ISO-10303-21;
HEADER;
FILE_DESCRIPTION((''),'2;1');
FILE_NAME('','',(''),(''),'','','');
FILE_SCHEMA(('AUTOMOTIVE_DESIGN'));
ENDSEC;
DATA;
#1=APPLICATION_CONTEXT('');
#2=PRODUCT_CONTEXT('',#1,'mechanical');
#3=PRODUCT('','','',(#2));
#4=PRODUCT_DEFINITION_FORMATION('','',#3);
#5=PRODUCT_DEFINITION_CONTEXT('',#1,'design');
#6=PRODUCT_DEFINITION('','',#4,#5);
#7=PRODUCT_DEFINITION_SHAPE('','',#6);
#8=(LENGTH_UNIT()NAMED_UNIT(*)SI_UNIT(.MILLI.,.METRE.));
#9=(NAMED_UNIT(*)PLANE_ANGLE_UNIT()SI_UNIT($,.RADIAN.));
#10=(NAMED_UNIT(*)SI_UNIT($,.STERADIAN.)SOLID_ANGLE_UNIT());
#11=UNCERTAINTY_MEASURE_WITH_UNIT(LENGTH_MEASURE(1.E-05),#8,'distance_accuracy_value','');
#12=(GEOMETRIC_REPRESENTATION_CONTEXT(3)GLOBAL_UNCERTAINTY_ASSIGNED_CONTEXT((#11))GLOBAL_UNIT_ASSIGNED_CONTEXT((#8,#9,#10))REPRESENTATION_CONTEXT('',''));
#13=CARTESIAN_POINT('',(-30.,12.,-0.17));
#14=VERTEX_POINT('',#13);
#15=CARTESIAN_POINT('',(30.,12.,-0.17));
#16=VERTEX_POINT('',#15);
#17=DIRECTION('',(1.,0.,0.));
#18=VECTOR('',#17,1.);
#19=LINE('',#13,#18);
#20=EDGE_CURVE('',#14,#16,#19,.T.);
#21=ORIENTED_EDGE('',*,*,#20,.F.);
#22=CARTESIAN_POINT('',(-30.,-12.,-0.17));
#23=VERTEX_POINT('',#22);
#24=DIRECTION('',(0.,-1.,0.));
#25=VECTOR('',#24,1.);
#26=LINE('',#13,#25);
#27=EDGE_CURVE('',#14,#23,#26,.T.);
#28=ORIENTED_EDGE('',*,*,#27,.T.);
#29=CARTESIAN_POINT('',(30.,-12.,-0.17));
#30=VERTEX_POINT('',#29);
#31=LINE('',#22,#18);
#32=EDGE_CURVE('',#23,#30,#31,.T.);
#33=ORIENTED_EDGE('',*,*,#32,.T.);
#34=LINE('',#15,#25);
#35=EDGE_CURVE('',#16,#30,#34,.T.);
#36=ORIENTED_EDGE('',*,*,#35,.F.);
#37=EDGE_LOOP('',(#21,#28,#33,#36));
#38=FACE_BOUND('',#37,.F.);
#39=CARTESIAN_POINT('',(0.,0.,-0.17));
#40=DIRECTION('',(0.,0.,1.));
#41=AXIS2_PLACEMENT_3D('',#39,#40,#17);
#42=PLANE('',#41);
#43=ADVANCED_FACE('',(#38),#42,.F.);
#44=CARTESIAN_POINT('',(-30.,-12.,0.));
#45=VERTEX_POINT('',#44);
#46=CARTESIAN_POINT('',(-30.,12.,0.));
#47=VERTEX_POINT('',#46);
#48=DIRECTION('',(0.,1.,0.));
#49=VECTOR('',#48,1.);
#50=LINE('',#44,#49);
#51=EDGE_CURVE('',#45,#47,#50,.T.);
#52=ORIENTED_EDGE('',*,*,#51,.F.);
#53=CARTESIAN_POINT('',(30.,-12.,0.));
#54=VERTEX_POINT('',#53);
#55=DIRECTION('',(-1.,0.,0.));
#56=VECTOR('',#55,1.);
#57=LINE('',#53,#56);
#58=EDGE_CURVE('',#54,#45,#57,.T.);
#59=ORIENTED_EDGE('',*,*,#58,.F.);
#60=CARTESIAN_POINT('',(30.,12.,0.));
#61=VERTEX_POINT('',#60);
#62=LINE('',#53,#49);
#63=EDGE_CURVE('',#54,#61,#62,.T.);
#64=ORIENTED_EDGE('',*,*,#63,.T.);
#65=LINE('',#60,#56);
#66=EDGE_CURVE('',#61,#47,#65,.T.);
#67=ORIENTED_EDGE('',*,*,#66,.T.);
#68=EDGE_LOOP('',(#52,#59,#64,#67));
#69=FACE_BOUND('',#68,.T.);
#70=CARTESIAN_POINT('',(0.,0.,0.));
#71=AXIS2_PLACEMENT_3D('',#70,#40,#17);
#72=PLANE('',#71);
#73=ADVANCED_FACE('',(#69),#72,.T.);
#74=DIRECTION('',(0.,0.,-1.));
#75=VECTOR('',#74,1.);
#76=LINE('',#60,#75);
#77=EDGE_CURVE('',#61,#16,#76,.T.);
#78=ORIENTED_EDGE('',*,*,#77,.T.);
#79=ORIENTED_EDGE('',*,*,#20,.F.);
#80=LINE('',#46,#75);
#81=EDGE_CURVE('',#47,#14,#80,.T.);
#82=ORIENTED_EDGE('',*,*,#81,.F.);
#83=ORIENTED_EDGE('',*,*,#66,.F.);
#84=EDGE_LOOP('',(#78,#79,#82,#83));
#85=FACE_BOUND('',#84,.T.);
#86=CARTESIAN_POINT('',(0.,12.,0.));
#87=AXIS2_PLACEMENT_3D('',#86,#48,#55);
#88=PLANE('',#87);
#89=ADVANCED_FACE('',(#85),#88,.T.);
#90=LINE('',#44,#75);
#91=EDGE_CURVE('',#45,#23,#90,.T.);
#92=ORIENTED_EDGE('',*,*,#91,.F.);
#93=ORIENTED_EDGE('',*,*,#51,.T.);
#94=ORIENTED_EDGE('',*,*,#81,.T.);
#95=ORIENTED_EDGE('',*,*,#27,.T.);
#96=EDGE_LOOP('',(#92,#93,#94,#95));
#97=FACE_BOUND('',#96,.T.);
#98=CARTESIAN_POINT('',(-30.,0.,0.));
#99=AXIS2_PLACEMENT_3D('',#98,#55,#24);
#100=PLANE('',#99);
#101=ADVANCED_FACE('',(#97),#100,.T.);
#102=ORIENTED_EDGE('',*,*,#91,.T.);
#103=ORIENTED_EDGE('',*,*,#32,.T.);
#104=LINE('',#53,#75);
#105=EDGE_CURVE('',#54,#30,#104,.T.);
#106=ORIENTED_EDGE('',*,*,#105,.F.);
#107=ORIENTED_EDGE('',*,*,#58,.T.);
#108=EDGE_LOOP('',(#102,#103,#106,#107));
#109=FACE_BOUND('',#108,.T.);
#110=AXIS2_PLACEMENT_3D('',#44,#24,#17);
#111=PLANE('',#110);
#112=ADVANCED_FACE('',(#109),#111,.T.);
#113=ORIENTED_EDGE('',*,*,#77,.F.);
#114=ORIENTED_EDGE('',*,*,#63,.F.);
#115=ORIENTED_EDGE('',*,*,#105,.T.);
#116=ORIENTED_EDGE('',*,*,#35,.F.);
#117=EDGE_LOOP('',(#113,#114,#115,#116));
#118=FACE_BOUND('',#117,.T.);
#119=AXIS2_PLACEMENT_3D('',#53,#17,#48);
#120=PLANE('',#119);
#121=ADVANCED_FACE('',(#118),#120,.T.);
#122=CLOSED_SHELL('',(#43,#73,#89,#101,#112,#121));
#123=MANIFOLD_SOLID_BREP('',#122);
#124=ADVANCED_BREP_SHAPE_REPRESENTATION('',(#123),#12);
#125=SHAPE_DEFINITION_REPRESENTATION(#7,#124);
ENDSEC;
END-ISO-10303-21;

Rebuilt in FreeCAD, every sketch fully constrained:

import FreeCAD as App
import Part
import Sketcher


def add_polygon(sketch, points):
    """Adds a closed chain of lines whose ends are joined by coincident constraints."""
    first, n = sketch.GeometryCount, len(points)
    for a, b in zip(points, points[1:] + points[:1]):
        sketch.addGeometry(Part.LineSegment(App.Vector(*a, 0), App.Vector(*b, 0)), False)
    for i in range(n):
        sketch.addConstraint(Sketcher.Constraint("Coincident", first + i, 2, first + (i + 1) % n, 1))

doc = App.newDocument("Part")
body = doc.addObject("PartDesign::Body", "Body")

# Sketch on XY plane
sketch1 = body.newObject("Sketcher::SketchObject", "Sketch")
sketch1.AttachmentSupport = (doc.getObject("XY_Plane"), [""])
sketch1.MapMode = "FlatFace"
add_polygon(sketch1, [(-30, -12), (30, -12), (30, 12), (-30, 12)])  # lines 0-3
sketch1.addConstraint(Sketcher.Constraint("Horizontal", 0))
sketch1.addConstraint(Sketcher.Constraint("Vertical", 1))
sketch1.addConstraint(Sketcher.Constraint("Horizontal", 2))
sketch1.addConstraint(Sketcher.Constraint("Vertical", 3))
sketch1.addConstraint(Sketcher.Constraint("Symmetric", 0, 2, 2, 2, -1, 1))
sketch1.addConstraint(Sketcher.Constraint("DistanceX", 0, 1, 0, 2, 60.0))
sketch1.addConstraint(Sketcher.Constraint("DistanceY", 1, 1, 1, 2, 24.0))
pad1 = body.newObject("PartDesign::Pad", "Pad")
pad1.Profile = sketch1
pad1.Length = 0.17
pad1.Reversed = True

doc.recompute()
